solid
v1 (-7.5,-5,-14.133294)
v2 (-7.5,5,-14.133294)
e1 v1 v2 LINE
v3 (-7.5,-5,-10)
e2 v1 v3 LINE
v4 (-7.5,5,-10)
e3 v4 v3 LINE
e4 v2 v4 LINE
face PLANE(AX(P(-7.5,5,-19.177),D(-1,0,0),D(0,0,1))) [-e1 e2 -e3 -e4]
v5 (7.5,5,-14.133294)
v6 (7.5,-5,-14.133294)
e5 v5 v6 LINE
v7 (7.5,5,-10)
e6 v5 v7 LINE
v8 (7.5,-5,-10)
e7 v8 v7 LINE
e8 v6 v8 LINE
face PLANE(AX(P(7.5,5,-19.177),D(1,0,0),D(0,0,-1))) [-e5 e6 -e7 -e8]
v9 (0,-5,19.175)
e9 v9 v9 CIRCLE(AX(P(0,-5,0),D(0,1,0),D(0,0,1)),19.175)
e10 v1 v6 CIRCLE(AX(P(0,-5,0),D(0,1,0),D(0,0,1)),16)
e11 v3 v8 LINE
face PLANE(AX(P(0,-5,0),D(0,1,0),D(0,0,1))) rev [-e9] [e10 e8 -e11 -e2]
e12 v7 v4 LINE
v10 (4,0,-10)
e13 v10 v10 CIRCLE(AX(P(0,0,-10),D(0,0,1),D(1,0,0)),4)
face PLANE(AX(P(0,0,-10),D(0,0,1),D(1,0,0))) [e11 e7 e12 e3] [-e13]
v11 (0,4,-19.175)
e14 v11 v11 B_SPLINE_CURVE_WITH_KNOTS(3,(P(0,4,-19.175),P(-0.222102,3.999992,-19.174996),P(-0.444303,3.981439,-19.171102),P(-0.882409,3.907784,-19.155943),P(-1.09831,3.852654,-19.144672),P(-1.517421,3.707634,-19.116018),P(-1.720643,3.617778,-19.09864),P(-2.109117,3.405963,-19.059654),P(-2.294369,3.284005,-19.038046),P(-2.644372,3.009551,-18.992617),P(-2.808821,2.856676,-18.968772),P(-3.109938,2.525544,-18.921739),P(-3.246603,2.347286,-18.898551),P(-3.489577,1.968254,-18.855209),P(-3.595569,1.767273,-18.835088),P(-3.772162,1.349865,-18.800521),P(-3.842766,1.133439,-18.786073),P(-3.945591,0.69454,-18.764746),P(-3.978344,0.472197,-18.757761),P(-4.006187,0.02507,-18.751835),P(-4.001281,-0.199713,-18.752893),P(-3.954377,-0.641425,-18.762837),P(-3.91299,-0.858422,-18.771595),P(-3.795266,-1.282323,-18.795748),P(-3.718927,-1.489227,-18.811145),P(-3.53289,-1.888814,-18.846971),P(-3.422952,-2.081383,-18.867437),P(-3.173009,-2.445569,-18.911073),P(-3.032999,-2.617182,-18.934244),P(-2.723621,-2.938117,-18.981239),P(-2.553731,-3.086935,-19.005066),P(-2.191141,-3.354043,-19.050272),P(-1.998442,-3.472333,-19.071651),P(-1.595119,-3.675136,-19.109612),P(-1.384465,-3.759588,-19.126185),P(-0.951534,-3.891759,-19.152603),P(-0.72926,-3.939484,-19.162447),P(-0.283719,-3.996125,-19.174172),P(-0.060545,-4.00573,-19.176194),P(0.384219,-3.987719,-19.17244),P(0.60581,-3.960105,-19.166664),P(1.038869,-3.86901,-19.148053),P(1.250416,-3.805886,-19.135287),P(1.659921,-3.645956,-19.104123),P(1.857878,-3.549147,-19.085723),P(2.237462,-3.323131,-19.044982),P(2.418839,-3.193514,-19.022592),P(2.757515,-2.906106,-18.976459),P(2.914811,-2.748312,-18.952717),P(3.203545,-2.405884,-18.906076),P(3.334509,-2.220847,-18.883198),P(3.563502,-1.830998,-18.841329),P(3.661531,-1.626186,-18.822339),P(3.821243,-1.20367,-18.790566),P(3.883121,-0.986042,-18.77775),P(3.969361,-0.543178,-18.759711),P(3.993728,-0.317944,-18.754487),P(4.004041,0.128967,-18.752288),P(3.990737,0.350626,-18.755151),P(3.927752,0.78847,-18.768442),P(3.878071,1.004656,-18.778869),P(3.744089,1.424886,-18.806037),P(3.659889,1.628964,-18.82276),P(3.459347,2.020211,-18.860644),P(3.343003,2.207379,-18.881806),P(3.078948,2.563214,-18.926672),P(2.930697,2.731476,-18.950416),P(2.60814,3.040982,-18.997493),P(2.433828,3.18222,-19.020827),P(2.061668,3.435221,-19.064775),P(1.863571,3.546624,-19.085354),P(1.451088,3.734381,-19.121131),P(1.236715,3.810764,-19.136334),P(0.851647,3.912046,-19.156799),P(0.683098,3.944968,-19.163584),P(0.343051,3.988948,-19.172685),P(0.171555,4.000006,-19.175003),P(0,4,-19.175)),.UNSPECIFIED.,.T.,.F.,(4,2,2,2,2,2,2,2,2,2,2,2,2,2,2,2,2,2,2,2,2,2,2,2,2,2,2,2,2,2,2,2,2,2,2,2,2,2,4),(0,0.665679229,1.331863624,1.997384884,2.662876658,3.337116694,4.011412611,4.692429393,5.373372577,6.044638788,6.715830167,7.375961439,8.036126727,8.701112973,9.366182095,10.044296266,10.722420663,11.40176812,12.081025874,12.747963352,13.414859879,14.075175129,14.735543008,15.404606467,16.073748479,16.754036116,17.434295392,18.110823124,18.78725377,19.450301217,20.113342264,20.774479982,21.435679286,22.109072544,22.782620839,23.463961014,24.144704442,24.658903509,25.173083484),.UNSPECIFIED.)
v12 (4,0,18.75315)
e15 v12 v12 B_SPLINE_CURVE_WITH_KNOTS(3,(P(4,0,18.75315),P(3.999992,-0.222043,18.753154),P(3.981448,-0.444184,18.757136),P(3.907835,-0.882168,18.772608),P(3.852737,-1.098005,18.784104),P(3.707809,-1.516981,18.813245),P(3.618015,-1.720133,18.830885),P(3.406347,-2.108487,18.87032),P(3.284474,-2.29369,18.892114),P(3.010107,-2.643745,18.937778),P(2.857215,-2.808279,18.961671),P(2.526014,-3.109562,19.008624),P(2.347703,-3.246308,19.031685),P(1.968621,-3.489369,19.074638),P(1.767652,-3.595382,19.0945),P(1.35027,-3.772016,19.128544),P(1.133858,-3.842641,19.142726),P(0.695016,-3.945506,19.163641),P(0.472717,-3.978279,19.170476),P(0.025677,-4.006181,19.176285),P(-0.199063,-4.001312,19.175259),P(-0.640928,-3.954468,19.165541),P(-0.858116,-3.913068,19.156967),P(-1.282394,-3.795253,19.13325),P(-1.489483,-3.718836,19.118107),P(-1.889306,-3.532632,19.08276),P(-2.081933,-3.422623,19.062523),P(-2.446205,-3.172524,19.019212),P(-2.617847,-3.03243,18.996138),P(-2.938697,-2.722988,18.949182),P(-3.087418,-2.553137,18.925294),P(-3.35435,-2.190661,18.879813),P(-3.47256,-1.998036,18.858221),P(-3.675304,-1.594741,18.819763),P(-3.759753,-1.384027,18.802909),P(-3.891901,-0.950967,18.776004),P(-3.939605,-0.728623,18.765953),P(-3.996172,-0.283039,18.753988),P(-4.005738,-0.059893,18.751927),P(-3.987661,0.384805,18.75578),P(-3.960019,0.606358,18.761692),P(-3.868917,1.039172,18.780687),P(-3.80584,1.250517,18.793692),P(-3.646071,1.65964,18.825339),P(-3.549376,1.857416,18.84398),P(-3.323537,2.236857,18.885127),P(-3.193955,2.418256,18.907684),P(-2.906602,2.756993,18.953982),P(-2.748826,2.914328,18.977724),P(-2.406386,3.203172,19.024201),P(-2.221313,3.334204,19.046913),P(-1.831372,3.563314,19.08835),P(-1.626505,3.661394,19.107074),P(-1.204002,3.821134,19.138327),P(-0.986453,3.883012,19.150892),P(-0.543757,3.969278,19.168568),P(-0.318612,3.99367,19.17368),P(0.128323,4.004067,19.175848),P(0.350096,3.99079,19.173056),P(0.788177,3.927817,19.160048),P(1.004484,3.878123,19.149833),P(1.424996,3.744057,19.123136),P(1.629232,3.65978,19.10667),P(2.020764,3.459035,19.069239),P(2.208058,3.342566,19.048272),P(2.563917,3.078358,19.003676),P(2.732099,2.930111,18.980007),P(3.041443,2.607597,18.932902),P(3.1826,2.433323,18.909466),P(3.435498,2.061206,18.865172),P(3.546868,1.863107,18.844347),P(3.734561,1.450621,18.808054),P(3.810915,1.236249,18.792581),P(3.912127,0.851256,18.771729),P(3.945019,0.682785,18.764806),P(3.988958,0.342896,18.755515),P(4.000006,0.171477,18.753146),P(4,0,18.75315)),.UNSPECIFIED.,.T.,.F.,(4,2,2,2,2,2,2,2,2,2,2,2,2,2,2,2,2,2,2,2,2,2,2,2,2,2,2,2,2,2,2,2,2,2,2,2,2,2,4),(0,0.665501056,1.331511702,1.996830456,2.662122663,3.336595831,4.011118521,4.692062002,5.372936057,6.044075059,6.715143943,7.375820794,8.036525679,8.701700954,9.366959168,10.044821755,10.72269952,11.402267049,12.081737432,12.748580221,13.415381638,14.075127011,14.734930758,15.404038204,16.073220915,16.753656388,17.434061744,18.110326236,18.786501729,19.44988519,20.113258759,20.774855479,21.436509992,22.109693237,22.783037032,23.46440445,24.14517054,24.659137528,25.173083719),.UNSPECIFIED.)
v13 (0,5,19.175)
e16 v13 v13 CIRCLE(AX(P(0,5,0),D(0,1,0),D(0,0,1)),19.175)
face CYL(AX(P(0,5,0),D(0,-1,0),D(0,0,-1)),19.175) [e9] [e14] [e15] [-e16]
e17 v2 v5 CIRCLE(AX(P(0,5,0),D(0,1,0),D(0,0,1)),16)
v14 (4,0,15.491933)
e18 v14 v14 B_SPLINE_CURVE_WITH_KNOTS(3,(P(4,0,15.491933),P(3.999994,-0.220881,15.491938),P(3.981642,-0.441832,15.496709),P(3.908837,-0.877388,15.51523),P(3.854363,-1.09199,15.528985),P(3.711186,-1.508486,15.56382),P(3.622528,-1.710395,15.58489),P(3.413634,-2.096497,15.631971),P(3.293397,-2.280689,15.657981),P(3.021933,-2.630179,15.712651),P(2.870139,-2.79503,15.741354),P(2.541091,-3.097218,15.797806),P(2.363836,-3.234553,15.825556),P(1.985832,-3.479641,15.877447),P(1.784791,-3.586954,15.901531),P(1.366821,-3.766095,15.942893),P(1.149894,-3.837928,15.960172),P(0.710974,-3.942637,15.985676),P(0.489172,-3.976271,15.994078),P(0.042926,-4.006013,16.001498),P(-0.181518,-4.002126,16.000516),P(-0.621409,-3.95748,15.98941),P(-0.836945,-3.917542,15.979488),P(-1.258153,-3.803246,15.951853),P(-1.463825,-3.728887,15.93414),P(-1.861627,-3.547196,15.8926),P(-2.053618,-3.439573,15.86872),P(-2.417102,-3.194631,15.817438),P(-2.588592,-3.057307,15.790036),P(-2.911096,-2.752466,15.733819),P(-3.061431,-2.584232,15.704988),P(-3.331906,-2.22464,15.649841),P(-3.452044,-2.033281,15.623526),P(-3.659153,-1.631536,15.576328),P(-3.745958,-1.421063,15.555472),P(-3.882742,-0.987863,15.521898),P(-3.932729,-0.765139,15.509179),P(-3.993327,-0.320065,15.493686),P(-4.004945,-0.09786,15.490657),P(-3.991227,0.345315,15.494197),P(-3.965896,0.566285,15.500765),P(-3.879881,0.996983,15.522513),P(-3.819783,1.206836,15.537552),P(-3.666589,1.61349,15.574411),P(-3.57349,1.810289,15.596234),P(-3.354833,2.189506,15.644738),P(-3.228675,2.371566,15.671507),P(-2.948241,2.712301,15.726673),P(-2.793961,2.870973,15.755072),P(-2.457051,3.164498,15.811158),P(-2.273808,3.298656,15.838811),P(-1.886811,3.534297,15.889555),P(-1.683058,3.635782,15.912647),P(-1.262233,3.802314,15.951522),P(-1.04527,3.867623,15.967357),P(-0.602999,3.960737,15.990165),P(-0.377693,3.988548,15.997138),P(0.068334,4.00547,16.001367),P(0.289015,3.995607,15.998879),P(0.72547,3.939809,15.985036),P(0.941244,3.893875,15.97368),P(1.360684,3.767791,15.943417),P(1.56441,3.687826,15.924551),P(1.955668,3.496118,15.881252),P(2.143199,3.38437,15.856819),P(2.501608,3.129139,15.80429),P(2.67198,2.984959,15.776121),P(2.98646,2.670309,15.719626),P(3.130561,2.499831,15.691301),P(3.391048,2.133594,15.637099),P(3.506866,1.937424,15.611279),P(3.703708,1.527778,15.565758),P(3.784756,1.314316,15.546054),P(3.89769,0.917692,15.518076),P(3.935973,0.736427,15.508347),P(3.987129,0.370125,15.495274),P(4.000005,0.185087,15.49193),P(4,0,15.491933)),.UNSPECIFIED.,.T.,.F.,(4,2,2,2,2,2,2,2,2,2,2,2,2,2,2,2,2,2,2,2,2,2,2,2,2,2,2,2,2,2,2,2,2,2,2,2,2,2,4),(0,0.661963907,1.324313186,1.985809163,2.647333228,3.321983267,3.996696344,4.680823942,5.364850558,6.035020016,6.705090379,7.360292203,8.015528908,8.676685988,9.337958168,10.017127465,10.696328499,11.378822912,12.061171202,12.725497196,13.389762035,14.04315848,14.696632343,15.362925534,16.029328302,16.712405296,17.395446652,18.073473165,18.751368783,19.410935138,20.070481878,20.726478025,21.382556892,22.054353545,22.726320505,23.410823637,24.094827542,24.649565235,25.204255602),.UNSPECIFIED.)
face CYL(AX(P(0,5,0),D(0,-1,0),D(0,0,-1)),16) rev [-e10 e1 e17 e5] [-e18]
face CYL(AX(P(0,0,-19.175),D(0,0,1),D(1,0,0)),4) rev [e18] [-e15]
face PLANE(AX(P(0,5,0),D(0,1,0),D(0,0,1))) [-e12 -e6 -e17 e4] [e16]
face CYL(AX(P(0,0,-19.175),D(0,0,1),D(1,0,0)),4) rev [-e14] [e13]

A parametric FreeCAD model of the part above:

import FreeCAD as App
import Part
import Sketcher
from FreeCAD import Vector
Q = App.Units.Quantity


def add_polygon(sketch, points):
    """Adds a closed chain of lines whose ends are joined by coincident constraints."""
    first, n = sketch.GeometryCount, len(points)
    for a, b in zip(points, points[1:] + points[:1]):
        sketch.addGeometry(Part.LineSegment(App.Vector(*a, 0), App.Vector(*b, 0)), False)
    for i in range(n):
        sketch.addConstraint(Sketcher.Constraint("Coincident", first + i, 2, first + (i + 1) % n, 1))

doc = App.newDocument("Part")
body = doc.addObject("PartDesign::Body", "Body")

sketch1 = body.newObject("Sketcher::SketchObject", "Sketch")
sketch1.AttachmentSupport = (doc.getObject("XZ_Plane"), [""])
sketch1.MapMode = "FlatFace"
sketch1.addGeometry(Part.Circle(Vector(0, 0, 0), Vector(0, 0, 1), 19), False)
sketch1.addGeometry(Part.Circle(Vector(0, 0, 0), Vector(0, 0, 1), 16), False)
sketch1.addConstraint(Sketcher.Constraint("Coincident", 0, 3, -1, 1))
sketch1.addConstraint(Sketcher.Constraint("Coincident", 1, 3, -1, 1))
sketch1.addConstraint(Sketcher.Constraint("Diameter", 1, Q("32 mm")))
sketch1.addConstraint(Sketcher.Constraint("Diameter", 0, Q("38.35 mm")))
pad1 = body.newObject("PartDesign::Pad", "Pad")
pad1.Profile = sketch1
pad1.Length = 10
pad1.Midplane = True

sketch2 = body.newObject("Sketcher::SketchObject", "Sketch001")
sketch2.AttachmentSupport = (doc.getObject("XY_Plane"), [""])
sketch2.MapMode = "FlatFace"
sketch2.AttachmentOffset = App.Placement(Vector(0, 0, -10), App.Rotation())
add_polygon(sketch2, [(-8, 5), (-8, -5), (8, -5), (8, 5)])
sketch2.addConstraint(Sketcher.Constraint("Vertical", 0))
sketch2.addConstraint(Sketcher.Constraint("Horizontal", 1))
sketch2.addConstraint(Sketcher.Constraint("Vertical", 2))
sketch2.addConstraint(Sketcher.Constraint("Horizontal", 3))
sketch2.addConstraint(Sketcher.Constraint("Symmetric", 0, 2, 2, 2, -1, 1))
sketch2.addConstraint(Sketcher.Constraint("DistanceX", 1, 1, 1, 2, Q("15 mm")))
sketch2.addConstraint(Sketcher.Constraint("DistanceY", 0, 2, 0, 1, Q("10 mm")))
pad2 = body.newObject("PartDesign::Pad", "Pad001")
pad2.Profile = sketch2
pad2.Type = "UpToFirst"
pad2.Reversed = True

sketch3 = body.newObject("Sketcher::SketchObject", "Sketch002")
sketch3.AttachmentSupport = (doc.getObject("XY_Plane"), [""])
sketch3.MapMode = "FlatFace"
sketch3.AttachmentOffset = App.Placement(Vector(0, 0, 3.7), App.Rotation())
sketch3.addGeometry(Part.Circle(Vector(0, 0, 0), Vector(0, 0, 1), 4), False)
sketch3.addConstraint(Sketcher.Constraint("Coincident", 0, 3, -1, 1))
sketch3.addConstraint(Sketcher.Constraint("Diameter", 0, Q("8 mm")))
pocket1 = body.newObject("PartDesign::Pocket", "Pocket")
pocket1.Profile = sketch3
pocket1.Type = "ThroughAll"
pocket1.Midplane = True

doc.recompute()
